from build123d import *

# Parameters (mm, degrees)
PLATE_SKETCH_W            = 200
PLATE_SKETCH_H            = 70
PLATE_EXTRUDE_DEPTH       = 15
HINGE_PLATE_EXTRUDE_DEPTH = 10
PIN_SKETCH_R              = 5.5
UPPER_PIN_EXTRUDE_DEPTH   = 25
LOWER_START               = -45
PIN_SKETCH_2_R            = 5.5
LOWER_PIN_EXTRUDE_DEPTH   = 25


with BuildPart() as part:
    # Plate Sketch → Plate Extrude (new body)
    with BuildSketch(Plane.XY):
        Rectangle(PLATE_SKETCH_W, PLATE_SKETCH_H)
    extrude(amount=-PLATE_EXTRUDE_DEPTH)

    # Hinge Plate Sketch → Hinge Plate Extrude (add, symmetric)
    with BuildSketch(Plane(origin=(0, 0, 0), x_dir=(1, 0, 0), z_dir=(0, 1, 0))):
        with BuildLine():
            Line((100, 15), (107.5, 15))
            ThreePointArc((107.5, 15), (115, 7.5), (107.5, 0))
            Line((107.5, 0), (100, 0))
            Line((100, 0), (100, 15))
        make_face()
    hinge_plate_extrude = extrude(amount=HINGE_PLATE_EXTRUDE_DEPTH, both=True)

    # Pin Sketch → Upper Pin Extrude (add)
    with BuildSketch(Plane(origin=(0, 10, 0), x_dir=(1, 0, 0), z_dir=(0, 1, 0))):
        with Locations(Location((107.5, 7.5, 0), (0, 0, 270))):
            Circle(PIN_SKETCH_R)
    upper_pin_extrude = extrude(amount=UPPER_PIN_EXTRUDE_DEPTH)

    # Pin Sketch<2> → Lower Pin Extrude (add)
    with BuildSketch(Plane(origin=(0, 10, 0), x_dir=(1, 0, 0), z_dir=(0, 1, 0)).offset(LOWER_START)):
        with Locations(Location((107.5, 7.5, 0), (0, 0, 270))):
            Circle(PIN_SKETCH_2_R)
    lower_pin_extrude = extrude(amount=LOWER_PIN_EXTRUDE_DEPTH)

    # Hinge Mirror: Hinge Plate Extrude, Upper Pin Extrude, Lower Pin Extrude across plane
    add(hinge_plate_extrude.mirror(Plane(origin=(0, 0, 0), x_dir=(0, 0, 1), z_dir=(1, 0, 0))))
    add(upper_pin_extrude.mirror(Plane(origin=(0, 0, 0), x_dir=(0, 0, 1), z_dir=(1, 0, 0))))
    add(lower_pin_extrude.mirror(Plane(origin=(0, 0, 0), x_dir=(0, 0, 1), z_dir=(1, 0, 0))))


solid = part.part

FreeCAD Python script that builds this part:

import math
import FreeCAD as App
import Part
import Sketcher

V = App.Vector


def add_polygon(sketch, points):
    """Adds a closed chain of lines whose ends are joined by coincident constraints."""
    first, n = sketch.GeometryCount, len(points)
    for a, b in zip(points, points[1:] + points[:1]):
        sketch.addGeometry(Part.LineSegment(App.Vector(*a, 0), App.Vector(*b, 0)), False)
    for i in range(n):
        sketch.addConstraint(Sketcher.Constraint("Coincident", first + i, 2, first + (i + 1) % n, 1))

doc = App.newDocument("Part")
body = doc.addObject("PartDesign::Body", "Body")

# Sketch on XY plane
sketch1 = body.newObject("Sketcher::SketchObject", "Sketch")
sketch1.AttachmentSupport = (doc.getObject("XY_Plane"), [""])
sketch1.MapMode = "FlatFace"
add_polygon(sketch1, [(-100, 35), (-100, -35), (100, -35), (100, 35)])  # lines 0-3
sketch1.addConstraint(Sketcher.Constraint("Vertical", 0))
sketch1.addConstraint(Sketcher.Constraint("Horizontal", 1))
sketch1.addConstraint(Sketcher.Constraint("Vertical", 2))
sketch1.addConstraint(Sketcher.Constraint("Horizontal", 3))
sketch1.addConstraint(Sketcher.Constraint("Symmetric", 0, 2, 2, 2, -1, 1))
sketch1.addConstraint(Sketcher.Constraint("DistanceX", 1, 1, 1, 2, 200.0))
sketch1.addConstraint(Sketcher.Constraint("DistanceY", 0, 2, 0, 1, 70.0))
pad1 = body.newObject("PartDesign::Pad", "Pad")
pad1.Profile = sketch1
pad1.Length = 15
pad1.Reversed = True

# Sketch on XZ plane
sketch2 = body.newObject("Sketcher::SketchObject", "Sketch001")
sketch2.AttachmentSupport = (doc.getObject("XZ_Plane"), [""])
sketch2.MapMode = "FlatFace"
sketch2.addGeometry(Part.LineSegment(V(108, -15, 0), V(100, -15, 0)), False)
sketch2.addGeometry(Part.LineSegment(V(100, -15, 0), V(100, 0, 0)), False)
sketch2.addGeometry(Part.LineSegment(V(100, 0, 0), V(108, 0, 0)), False)
sketch2.addGeometry(Part.ArcOfCircle(Part.Circle(V(108, -8, 0), V(0, 0, 1), 8), math.radians(-90), math.radians(90)), False)
sketch2.addConstraint(Sketcher.Constraint("Coincident", 0, 2, 1, 1))
sketch2.addConstraint(Sketcher.Constraint("Coincident", 1, 2, 2, 1))
sketch2.addConstraint(Sketcher.Constraint("Tangent", 2, 2, 3, 2))
sketch2.addConstraint(Sketcher.Constraint("Tangent", 3, 1, 0, 1))
sketch2.addConstraint(Sketcher.Constraint("Horizontal", 0))
sketch2.addConstraint(Sketcher.Constraint("Vertical", 1))
sketch2.addConstraint(Sketcher.Constraint("Horizontal", 2))
sketch2.addConstraint(Sketcher.Constraint("PointOnObject", 1, 2, -1))
sketch2.addConstraint(Sketcher.Constraint("Radius", 3, 7.5))
sketch2.addConstraint(Sketcher.Constraint("DistanceX", 0, 2, 0, 1, 7.5))
sketch2.addConstraint(Sketcher.Constraint("DistanceX", -1, 1, 0, 2, 100.0))
pad2 = body.newObject("PartDesign::Pad", "Pad001")
pad2.Profile = sketch2
pad2.Length = 20
pad2.Midplane = True

# Sketch on XZ plane
sketch3 = body.newObject("Sketcher::SketchObject", "Sketch002")
sketch3.AttachmentSupport = (doc.getObject("XZ_Plane"), [""])
sketch3.MapMode = "FlatFace"
sketch3.AttachmentOffset = App.Placement(V(0, 0, -10), App.Rotation())
sketch3.addGeometry(Part.Circle(V(108, -8, 0), V(0, 0, 1), 6), False)
sketch3.addConstraint(Sketcher.Constraint("Diameter", 0, 11.0))
sketch3.addConstraint(Sketcher.Constraint("DistanceX", -1, 1, 0, 3, 107.5))
sketch3.addConstraint(Sketcher.Constraint("DistanceY", 0, 3, -1, 1, 7.5))
pad3 = body.newObject("PartDesign::Pad", "Pad002")
pad3.Profile = sketch3
pad3.Length = 25
pad3.Reversed = True

# Sketch on XZ plane
sketch4 = body.newObject("Sketcher::SketchObject", "Sketch003")
sketch4.AttachmentSupport = (doc.getObject("XZ_Plane"), [""])
sketch4.MapMode = "FlatFace"
sketch4.AttachmentOffset = App.Placement(V(0, 0, 35), App.Rotation())
sketch4.addGeometry(Part.Circle(V(108, -8, 0), V(0, 0, 1), 6), False)
sketch4.addConstraint(Sketcher.Constraint("Diameter", 0, 11.0))
sketch4.addConstraint(Sketcher.Constraint("DistanceX", -1, 1, 0, 3, 107.5))
sketch4.addConstraint(Sketcher.Constraint("DistanceY", 0, 3, -1, 1, 7.5))
pad4 = body.newObject("PartDesign::Pad", "Pad003")
pad4.Profile = sketch4
pad4.Length = 25
pad4.Reversed = True
doc.recompute()

mirrored = body.newObject("PartDesign::Mirrored", "Mirrored")
mirrored.Originals = [pad2, pad3, pad4]
mirrored.MirrorPlane = (doc.getObject("YZ_Plane"), [""])
body.Tip = mirrored

doc.recompute()
